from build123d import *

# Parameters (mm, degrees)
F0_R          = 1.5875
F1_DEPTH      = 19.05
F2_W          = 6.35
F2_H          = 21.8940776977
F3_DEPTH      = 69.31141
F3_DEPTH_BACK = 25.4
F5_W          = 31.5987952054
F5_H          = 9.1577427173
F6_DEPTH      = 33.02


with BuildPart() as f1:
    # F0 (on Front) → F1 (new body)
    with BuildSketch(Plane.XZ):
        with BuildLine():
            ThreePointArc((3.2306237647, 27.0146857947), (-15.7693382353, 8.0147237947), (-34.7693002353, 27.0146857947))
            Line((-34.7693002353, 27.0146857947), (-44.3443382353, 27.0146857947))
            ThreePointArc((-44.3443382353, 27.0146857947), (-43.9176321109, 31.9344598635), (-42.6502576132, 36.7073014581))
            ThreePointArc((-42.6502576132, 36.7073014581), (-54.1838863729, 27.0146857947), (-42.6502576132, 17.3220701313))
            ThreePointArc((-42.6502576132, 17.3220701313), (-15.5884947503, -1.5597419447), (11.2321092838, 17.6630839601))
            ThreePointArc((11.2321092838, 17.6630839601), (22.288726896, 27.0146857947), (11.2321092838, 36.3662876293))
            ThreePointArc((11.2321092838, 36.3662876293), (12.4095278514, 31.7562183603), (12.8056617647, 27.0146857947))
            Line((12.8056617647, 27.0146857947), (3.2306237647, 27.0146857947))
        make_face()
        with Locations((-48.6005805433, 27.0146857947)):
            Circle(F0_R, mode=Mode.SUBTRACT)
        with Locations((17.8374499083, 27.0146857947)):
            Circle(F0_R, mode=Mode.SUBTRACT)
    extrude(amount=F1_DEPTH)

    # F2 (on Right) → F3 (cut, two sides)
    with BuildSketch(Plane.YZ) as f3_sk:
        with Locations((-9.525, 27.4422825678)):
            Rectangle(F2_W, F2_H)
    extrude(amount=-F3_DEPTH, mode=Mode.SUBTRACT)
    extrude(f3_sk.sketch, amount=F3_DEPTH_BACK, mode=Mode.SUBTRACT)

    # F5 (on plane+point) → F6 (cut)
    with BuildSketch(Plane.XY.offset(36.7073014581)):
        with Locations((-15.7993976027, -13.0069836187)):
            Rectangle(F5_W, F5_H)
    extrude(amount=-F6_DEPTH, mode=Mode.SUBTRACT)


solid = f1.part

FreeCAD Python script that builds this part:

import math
import FreeCAD as App
import Part
import Sketcher
Q = App.Units.Quantity


def add_polygon(sketch, points):
    """Adds a closed chain of lines whose ends are joined by coincident constraints."""
    first, n = sketch.GeometryCount, len(points)
    for a, b in zip(points, points[1:] + points[:1]):
        sketch.addGeometry(Part.LineSegment(App.Vector(*a, 0), App.Vector(*b, 0)), False)
    for i in range(n):
        sketch.addConstraint(Sketcher.Constraint("Coincident", first + i, 2, first + (i + 1) % n, 1))

doc = App.newDocument("Part")
body = doc.addObject("PartDesign::Body", "Body")

sketch1 = doc.addObject("Sketcher::SketchObject", "Sketch")
body.addObject(sketch1)
sketch1.AttachmentSupport = (doc.XZ_Plane, [""])
sketch1.MapMode = "FlatFace"
sketch1.addGeometry([
    Part.ArcOfCircle(Part.Circle(App.Vector(-15.8, 27, 0), App.Vector(0, 0, 1), 19), math.radians(180), math.radians(360)),
    Part.LineSegment(App.Vector(-34.8, 27, 0), App.Vector(-44.3, 27, 0)),
    Part.ArcOfCircle(Part.Circle(App.Vector(-15.8, 27, 0), App.Vector(0, 0, 1), 28.6), math.radians(160.17), math.radians(180)),
    Part.ArcOfCircle(Part.Circle(App.Vector(-44.3, 27, 0), App.Vector(0, 0, 1), 9.8), math.radians(80), math.radians(280)),
    Part.ArcOfCircle(Part.Circle(App.Vector(-15.8, 27, 0), App.Vector(0, 0, 1), 28.6), math.radians(-160), math.radians(-19)),
    Part.ArcOfCircle(Part.Circle(App.Vector(12.8, 27, 0), App.Vector(0, 0, 1), 9.5), math.radians(-100), math.radians(100)),
    Part.ArcOfCircle(Part.Circle(App.Vector(-15.8, 27, 0), App.Vector(0, 0, 1), 28.6), math.radians(0), math.radians(19.1)),
    Part.LineSegment(App.Vector(12.8, 27, 0), App.Vector(3.2, 27, 0)),
    Part.Circle(App.Vector(-48.6, 27, 0), App.Vector(0, 0, 1), 1.6),
    Part.Circle(App.Vector(17.8, 27, 0), App.Vector(0, 0, 1), 1.6),
], False)
sketch1.addConstraint([
    Sketcher.Constraint("Coincident", 0, 1, 1, 1),
    Sketcher.Constraint("Coincident", 1, 2, 2, 2),
    Sketcher.Constraint("Coincident", 2, 1, 3, 1),
    Sketcher.Constraint("Coincident", 3, 2, 4, 1),
    Sketcher.Constraint("Coincident", 4, 2, 5, 1),
    Sketcher.Constraint("Coincident", 5, 2, 6, 2),
    Sketcher.Constraint("Coincident", 6, 1, 7, 1),
    Sketcher.Constraint("Coincident", 7, 2, 0, 2),
    Sketcher.Constraint("Horizontal", 1),
    Sketcher.Constraint("Horizontal", 7),
    Sketcher.Constraint("Coincident", 2, 3, 0, 3),
    Sketcher.Constraint("Coincident", 4, 3, 0, 3),
    Sketcher.Constraint("Coincident", 6, 3, 0, 3),
    Sketcher.Constraint("Coincident", 1, 2, 3, 3),
    Sketcher.Constraint("Coincident", 6, 1, 5, 3),
    Sketcher.Constraint("Equal", 2, 4),
    Sketcher.Constraint("Equal", 4, 6),
    Sketcher.Constraint("Equal", 8, 9),
    Sketcher.Constraint("Horizontal", 2, 3, 3, 3),
    Sketcher.Constraint("Horizontal", 4, 3, 5, 3),
    Sketcher.Constraint("Horizontal", 6, 3, 8, 3),
    Sketcher.Constraint("Horizontal", 8, 3, 9, 3),
    Sketcher.Constraint("Diameter", 8, Q("0.125 in")),
    Sketcher.Constraint("Radius", 2, Q("1.125 in")),
    Sketcher.Constraint("Radius", 0, Q("18.999962 mm")),
    Sketcher.Constraint("Radius", 3, Q("9.839548 mm")),
    Sketcher.Constraint("Radius", 5, Q("9.483065 mm")),
    Sketcher.Constraint("DistanceX", 0, 1, -1, 1, Q("34.7693 mm")),
    Sketcher.Constraint("DistanceY", -1, 1, 2, 1, Q("36.707301 mm")),
    Sketcher.Constraint("DistanceX", 8, 3, -1, 1, Q("48.600581 mm")),
    Sketcher.Constraint("DistanceX", -1, 1, 9, 3, Q("17.83745 mm")),
])
pad1 = doc.addObject("PartDesign::Pad", "Pad")
body.addObject(pad1)
pad1.Profile = sketch1
pad1.Length = Q("0.75 in")

sketch2 = doc.addObject("Sketcher::SketchObject", "Sketch001")
body.addObject(sketch2)
sketch2.AttachmentSupport = (doc.YZ_Plane, [""])
sketch2.MapMode = "FlatFace"
add_polygon(sketch2, [(-13, 38), (-13, 16), (-6, 16), (-6, 38)])
sketch2.addConstraint([
    Sketcher.Constraint("Vertical", 0),
    Sketcher.Constraint("Horizontal", 1),
    Sketcher.Constraint("Vertical", 2),
    Sketcher.Constraint("Horizontal", 3),
    Sketcher.Constraint("DistanceX", 1, 1, 1, 2, Q("0.25 in")),
    Sketcher.Constraint("DistanceX", 0, 2, -1, 1, Q("0.5 in")),
    Sketcher.Constraint("DistanceY", 0, 2, 0, 1, Q("21.894078 mm")),
    Sketcher.Constraint("DistanceY", -1, 1, 2, 2, Q("38.389321 mm")),
])
pocket1 = doc.addObject("PartDesign::Pocket", "Pocket")
body.addObject(pocket1)
pocket1.Profile = sketch2
pocket1.Type = "ThroughAll"
pocket1.Midplane = True

sketch3 = doc.addObject("Sketcher::SketchObject", "Sketch002")
body.addObject(sketch3)
sketch3.AttachmentSupport = (doc.XY_Plane, [""])
sketch3.MapMode = "FlatFace"
sketch3.AttachmentOffset = App.Placement(App.Vector(0, 0, 36.707301), App.Rotation())
add_polygon(sketch3, [(-32, -8), (-32, -18), (0, -18), (0, -8)])
sketch3.addConstraint([
    Sketcher.Constraint("Vertical", 0),
    Sketcher.Constraint("Horizontal", 1),
    Sketcher.Constraint("Vertical", 2),
    Sketcher.Constraint("Horizontal", 3),
    Sketcher.Constraint("PointOnObject", 1, 2, -2),
    Sketcher.Constraint("DistanceX", 1, 1, 1, 2, Q("31.598795 mm")),
    Sketcher.Constraint("DistanceY", 0, 2, 0, 1, Q("9.157743 mm")),
    Sketcher.Constraint("DistanceY", 0, 2, -1, 1, Q("17.585855 mm")),
])
pocket2 = doc.addObject("PartDesign::Pocket", "Pocket001")
body.addObject(pocket2)
pocket2.Profile = sketch3
pocket2.Length = Q("1.3 in")

doc.recompute()
